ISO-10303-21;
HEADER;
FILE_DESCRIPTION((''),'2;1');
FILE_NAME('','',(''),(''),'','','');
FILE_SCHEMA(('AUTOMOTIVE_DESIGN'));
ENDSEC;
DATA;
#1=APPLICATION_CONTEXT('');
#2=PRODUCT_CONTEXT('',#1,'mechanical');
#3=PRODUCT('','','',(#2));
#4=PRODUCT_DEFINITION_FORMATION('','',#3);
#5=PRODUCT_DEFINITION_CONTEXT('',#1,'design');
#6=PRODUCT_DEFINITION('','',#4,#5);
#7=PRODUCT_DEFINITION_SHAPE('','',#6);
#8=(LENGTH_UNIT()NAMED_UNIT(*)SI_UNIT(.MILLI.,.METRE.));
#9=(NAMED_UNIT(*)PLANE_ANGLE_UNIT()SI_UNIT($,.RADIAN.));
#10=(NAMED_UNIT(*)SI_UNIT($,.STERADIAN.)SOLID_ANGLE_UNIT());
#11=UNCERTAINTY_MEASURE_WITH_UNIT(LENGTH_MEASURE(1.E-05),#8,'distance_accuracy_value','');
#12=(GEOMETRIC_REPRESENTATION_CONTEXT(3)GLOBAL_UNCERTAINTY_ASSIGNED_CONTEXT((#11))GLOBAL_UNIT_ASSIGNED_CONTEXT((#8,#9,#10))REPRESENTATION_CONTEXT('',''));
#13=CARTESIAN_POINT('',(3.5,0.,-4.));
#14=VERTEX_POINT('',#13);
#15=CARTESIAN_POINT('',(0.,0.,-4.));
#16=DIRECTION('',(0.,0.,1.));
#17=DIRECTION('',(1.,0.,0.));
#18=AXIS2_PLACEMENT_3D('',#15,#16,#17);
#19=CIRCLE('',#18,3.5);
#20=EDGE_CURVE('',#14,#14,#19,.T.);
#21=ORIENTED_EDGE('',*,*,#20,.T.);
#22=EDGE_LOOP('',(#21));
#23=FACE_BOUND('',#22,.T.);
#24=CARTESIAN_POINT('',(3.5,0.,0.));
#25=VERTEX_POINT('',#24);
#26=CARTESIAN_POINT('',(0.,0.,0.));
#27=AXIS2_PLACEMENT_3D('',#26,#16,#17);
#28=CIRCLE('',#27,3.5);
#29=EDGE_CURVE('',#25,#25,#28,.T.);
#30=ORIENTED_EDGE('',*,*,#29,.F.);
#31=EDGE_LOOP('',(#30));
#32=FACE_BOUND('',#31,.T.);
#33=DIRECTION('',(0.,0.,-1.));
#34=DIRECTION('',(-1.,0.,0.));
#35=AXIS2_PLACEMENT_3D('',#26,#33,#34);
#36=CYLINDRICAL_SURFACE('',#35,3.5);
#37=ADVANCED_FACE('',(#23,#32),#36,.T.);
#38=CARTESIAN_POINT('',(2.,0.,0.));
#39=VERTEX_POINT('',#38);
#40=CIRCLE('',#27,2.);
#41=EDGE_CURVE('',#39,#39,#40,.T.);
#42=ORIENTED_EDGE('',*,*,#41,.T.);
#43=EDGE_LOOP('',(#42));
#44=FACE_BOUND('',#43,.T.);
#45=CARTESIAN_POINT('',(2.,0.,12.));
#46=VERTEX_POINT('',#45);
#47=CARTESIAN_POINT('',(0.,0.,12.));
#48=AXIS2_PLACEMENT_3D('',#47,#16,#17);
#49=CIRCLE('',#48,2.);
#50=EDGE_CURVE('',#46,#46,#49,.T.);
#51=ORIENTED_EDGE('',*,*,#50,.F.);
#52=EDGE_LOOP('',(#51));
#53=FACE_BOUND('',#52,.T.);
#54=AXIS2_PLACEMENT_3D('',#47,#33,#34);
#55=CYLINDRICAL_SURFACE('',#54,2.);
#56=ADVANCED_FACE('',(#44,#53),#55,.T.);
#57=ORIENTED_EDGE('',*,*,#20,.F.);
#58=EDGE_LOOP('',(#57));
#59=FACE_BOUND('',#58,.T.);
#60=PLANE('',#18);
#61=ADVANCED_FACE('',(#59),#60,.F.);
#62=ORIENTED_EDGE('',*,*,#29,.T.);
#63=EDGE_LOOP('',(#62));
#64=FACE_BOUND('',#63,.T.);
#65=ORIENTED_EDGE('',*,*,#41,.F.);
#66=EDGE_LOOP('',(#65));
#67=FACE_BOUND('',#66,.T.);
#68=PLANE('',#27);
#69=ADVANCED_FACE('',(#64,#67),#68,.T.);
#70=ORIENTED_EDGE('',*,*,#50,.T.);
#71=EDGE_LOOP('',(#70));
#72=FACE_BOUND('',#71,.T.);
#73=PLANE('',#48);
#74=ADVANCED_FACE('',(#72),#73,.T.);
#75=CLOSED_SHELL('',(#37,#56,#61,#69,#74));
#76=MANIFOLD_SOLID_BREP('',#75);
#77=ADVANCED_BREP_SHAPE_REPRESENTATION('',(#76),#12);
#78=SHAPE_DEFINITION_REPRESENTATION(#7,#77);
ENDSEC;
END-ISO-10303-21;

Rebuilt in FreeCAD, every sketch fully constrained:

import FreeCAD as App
import Part
import Sketcher

doc = App.newDocument("Part")
body = doc.addObject("PartDesign::Body", "Body")

sketch1 = body.newObject("Sketcher::SketchObject", "Sketch")
sketch1.AttachmentSupport = (doc.getObject("XY_Plane"), [""])
sketch1.MapMode = "FlatFace"
sketch1.AttachmentOffset = App.Placement(App.Vector(0, 0, -4), App.Rotation())
sketch1.addGeometry(Part.Circle(App.Vector(0, 0, 0), App.Vector(0, 0, 1), 3.5), False)
sketch1.addConstraint(Sketcher.Constraint("Coincident", 0, 3, -1, 1))
sketch1.addConstraint(Sketcher.Constraint("Diameter", 0, 7.0))
pad1 = body.newObject("PartDesign::Pad", "Pad")
pad1.Profile = sketch1
pad1.Length = 4

sketch2 = body.newObject("Sketcher::SketchObject", "Sketch001")
sketch2.AttachmentSupport = (doc.getObject("XY_Plane"), [""])
sketch2.MapMode = "FlatFace"
sketch2.addGeometry(Part.Circle(App.Vector(0, 0, 0), App.Vector(0, 0, 1), 2), False)
sketch2.addConstraint(Sketcher.Constraint("Coincident", 0, 3, -1, 1))
sketch2.addConstraint(Sketcher.Constraint("Diameter", 0, 4.0))
pad2 = body.newObject("PartDesign::Pad", "Pad001")
pad2.Profile = sketch2
pad2.Length = 12

doc.recompute()
